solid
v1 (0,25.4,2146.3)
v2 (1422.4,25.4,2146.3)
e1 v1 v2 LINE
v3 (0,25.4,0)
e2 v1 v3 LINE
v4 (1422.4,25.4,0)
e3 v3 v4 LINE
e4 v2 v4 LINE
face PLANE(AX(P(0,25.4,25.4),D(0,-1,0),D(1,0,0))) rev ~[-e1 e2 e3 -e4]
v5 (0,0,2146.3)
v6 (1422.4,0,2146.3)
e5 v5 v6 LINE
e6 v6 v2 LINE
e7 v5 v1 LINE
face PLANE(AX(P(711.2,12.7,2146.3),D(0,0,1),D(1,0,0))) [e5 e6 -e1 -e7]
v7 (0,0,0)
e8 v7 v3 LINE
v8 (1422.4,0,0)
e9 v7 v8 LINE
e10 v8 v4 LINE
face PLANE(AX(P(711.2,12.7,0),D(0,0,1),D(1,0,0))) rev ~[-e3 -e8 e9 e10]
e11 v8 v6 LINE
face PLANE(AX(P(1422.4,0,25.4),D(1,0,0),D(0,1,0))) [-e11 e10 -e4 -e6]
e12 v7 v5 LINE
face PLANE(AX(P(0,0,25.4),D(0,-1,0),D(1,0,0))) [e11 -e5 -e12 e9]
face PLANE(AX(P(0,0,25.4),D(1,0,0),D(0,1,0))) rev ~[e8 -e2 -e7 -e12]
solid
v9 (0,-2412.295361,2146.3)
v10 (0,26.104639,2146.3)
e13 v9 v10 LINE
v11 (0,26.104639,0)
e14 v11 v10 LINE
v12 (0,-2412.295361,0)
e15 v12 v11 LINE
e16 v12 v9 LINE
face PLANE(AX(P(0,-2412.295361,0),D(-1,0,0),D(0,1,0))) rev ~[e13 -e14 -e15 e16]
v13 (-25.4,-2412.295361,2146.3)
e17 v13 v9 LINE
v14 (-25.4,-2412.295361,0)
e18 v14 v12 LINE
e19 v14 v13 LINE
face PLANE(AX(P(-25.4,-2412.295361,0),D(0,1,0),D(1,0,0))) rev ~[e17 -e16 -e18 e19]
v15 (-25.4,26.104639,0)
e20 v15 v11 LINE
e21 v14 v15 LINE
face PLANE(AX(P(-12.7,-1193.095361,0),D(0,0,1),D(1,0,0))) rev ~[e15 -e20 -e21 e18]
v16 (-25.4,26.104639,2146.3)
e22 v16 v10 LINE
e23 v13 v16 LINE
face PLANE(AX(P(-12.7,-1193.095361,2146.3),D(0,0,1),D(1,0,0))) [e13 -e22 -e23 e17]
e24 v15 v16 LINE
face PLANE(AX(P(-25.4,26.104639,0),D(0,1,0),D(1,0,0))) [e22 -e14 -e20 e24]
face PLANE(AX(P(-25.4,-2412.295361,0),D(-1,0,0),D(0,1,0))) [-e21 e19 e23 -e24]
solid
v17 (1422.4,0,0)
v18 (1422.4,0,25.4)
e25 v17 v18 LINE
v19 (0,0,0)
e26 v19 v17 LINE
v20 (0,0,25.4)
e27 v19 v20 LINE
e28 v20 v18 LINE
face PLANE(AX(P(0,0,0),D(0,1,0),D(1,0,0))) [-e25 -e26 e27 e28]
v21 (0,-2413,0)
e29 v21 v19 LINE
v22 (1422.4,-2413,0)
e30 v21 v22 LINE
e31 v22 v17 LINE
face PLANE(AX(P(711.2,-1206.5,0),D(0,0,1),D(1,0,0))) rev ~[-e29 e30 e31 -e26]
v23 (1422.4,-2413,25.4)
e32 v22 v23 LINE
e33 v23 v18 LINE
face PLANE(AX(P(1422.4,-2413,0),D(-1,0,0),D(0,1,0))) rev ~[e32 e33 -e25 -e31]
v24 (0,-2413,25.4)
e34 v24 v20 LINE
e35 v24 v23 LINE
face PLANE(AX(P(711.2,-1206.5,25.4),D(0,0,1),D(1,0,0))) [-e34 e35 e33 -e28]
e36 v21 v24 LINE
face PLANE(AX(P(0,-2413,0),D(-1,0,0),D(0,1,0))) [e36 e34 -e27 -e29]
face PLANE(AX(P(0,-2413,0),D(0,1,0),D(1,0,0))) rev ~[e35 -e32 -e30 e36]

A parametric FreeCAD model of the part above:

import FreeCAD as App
import Part
import Sketcher

V = App.Vector
Q = App.Units.Quantity

doc = App.newDocument("Part")
params = doc.addObject("Spreadsheet::Sheet", "Params")
for row, (alias, value) in enumerate([
    ("sketch1_width", "56 in"),
    ("sketch1_height", "95 in"),
    ("pad1_length", "1 in"),
    ("sketch2_width", "56 in"),
    ("sketch2_height", "1 in"),
    ("pad2_length", "83.5 in"),
    ("pad2_length2", "1 in"),
    ("sketch3_width", "1 in"),
    ("sketch3_height", "96 in"),
    ("pad3_length", "84.5 in"),
], start=1):
    params.set(f"A{row}", alias)
    params.set(f"B{row}", "=" + value)
    params.setAlias(f"B{row}", alias)

body = doc.addObject("PartDesign::Body", "Body")

# Sketch on XY plane
sketch1 = body.newObject("Sketcher::SketchObject", "Sketch")
sketch1.AttachmentSupport = (doc.getObject("XY_Plane"), [""])
sketch1.MapMode = "FlatFace"
sketch1.addGeometry([
    Part.LineSegment(V(0, 0, 0), V(0, -2413, 0)),
    Part.LineSegment(V(0, -2413, 0), V(1422, -2413, 0)),
    Part.LineSegment(V(1422, -2413, 0), V(1422, 0, 0)),
    Part.LineSegment(V(1422, 0, 0), V(0, 0, 0)),
], False)
sketch1.addConstraint([
    Sketcher.Constraint("Coincident", 0, 2, 1, 1),
    Sketcher.Constraint("Coincident", 1, 2, 2, 1),
    Sketcher.Constraint("Coincident", 2, 2, 3, 1),
    Sketcher.Constraint("Coincident", 3, 2, 0, 1),
    Sketcher.Constraint("Vertical", 0),
    Sketcher.Constraint("Horizontal", 1),
    Sketcher.Constraint("Vertical", 2),
    Sketcher.Constraint("Horizontal", 3),
    Sketcher.Constraint("Coincident", 3, 2, -1, 1),
    Sketcher.Constraint("DistanceX", 1, 1, 1, 2, Q("56 in")),
    Sketcher.Constraint("DistanceY", 0, 2, 0, 1, Q("95 in")),
])
sketch1.setExpression("Constraints[9]", "Params.sketch1_width")
sketch1.setExpression("Constraints[10]", "Params.sketch1_height")
pad1 = body.newObject("PartDesign::Pad", "Pad")
pad1.Profile = sketch1
pad1.setExpression("Length", "Params.pad1_length")
body2 = doc.addObject("PartDesign::Body", "Body001")

# Sketch on XY plane
sketch2 = body2.newObject("Sketcher::SketchObject", "Sketch001")
sketch2.AttachmentSupport = (doc.getObject("XY_Plane001"), [""])
sketch2.MapMode = "FlatFace"
sketch2.AttachmentOffset = App.Placement(V(0, 0, 1 * 25.4), App.Rotation())
sketch2.addGeometry([
    Part.LineSegment(V(0, 25, 0), V(0, 0, 0)),
    Part.LineSegment(V(0, 0, 0), V(1422, 0, 0)),
    Part.LineSegment(V(1422, 0, 0), V(1422, 25, 0)),
    Part.LineSegment(V(1422, 25, 0), V(0, 25, 0)),
], False)
sketch2.addConstraint([
    Sketcher.Constraint("Coincident", 0, 2, 1, 1),
    Sketcher.Constraint("Coincident", 1, 2, 2, 1),
    Sketcher.Constraint("Coincident", 2, 2, 3, 1),
    Sketcher.Constraint("Coincident", 3, 2, 0, 1),
    Sketcher.Constraint("Vertical", 0),
    Sketcher.Constraint("Horizontal", 1),
    Sketcher.Constraint("Vertical", 2),
    Sketcher.Constraint("Horizontal", 3),
    Sketcher.Constraint("Coincident", 0, 2, -1, 1),
    Sketcher.Constraint("DistanceX", 1, 1, 1, 2, Q("56 in")),
    Sketcher.Constraint("DistanceY", 0, 2, 0, 1, Q("1 in")),
])
sketch2.setExpression("Constraints[9]", "Params.sketch2_width")
sketch2.setExpression("Constraints[10]", "Params.sketch2_height")
pad2 = body2.newObject("PartDesign::Pad", "Pad001")
pad2.Profile = sketch2
pad2.Type = "TwoLengths"
pad2.setExpression("Length", "Params.pad2_length")
pad2.setExpression("Length2", "Params.pad2_length2")
body3 = doc.addObject("PartDesign::Body", "Body002")

# Sketch on XY plane
sketch3 = body3.newObject("Sketcher::SketchObject", "Sketch002")
sketch3.AttachmentSupport = (doc.getObject("XY_Plane002"), [""])
sketch3.MapMode = "FlatFace"
sketch3.addGeometry([
    Part.LineSegment(V(-25, 26, 0), V(-25, -2412, 0)),
    Part.LineSegment(V(-25, -2412, 0), V(0, -2412, 0)),
    Part.LineSegment(V(0, -2412, 0), V(0, 26, 0)),
    Part.LineSegment(V(0, 26, 0), V(-25, 26, 0)),
], False)
sketch3.addConstraint([
    Sketcher.Constraint("Coincident", 0, 2, 1, 1),
    Sketcher.Constraint("Coincident", 1, 2, 2, 1),
    Sketcher.Constraint("Coincident", 2, 2, 3, 1),
    Sketcher.Constraint("Coincident", 3, 2, 0, 1),
    Sketcher.Constraint("Vertical", 0),
    Sketcher.Constraint("Horizontal", 1),
    Sketcher.Constraint("Vertical", 2),
    Sketcher.Constraint("Horizontal", 3),
    Sketcher.Constraint("PointOnObject", 1, 2, -2),
    Sketcher.Constraint("DistanceX", 1, 1, 1, 2, Q("1 in")),
    Sketcher.Constraint("DistanceY", 0, 2, 0, 1, Q("96 in")),
    Sketcher.Constraint("DistanceY", 0, 2, -1, 1, 2412.295361),
])
sketch3.setExpression("Constraints[9]", "Params.sketch3_width")
sketch3.setExpression("Constraints[10]", "Params.sketch3_height")
pad3 = body3.newObject("PartDesign::Pad", "Pad002")
pad3.Profile = sketch3
pad3.setExpression("Length", "Params.pad3_length")

doc.recompute()
